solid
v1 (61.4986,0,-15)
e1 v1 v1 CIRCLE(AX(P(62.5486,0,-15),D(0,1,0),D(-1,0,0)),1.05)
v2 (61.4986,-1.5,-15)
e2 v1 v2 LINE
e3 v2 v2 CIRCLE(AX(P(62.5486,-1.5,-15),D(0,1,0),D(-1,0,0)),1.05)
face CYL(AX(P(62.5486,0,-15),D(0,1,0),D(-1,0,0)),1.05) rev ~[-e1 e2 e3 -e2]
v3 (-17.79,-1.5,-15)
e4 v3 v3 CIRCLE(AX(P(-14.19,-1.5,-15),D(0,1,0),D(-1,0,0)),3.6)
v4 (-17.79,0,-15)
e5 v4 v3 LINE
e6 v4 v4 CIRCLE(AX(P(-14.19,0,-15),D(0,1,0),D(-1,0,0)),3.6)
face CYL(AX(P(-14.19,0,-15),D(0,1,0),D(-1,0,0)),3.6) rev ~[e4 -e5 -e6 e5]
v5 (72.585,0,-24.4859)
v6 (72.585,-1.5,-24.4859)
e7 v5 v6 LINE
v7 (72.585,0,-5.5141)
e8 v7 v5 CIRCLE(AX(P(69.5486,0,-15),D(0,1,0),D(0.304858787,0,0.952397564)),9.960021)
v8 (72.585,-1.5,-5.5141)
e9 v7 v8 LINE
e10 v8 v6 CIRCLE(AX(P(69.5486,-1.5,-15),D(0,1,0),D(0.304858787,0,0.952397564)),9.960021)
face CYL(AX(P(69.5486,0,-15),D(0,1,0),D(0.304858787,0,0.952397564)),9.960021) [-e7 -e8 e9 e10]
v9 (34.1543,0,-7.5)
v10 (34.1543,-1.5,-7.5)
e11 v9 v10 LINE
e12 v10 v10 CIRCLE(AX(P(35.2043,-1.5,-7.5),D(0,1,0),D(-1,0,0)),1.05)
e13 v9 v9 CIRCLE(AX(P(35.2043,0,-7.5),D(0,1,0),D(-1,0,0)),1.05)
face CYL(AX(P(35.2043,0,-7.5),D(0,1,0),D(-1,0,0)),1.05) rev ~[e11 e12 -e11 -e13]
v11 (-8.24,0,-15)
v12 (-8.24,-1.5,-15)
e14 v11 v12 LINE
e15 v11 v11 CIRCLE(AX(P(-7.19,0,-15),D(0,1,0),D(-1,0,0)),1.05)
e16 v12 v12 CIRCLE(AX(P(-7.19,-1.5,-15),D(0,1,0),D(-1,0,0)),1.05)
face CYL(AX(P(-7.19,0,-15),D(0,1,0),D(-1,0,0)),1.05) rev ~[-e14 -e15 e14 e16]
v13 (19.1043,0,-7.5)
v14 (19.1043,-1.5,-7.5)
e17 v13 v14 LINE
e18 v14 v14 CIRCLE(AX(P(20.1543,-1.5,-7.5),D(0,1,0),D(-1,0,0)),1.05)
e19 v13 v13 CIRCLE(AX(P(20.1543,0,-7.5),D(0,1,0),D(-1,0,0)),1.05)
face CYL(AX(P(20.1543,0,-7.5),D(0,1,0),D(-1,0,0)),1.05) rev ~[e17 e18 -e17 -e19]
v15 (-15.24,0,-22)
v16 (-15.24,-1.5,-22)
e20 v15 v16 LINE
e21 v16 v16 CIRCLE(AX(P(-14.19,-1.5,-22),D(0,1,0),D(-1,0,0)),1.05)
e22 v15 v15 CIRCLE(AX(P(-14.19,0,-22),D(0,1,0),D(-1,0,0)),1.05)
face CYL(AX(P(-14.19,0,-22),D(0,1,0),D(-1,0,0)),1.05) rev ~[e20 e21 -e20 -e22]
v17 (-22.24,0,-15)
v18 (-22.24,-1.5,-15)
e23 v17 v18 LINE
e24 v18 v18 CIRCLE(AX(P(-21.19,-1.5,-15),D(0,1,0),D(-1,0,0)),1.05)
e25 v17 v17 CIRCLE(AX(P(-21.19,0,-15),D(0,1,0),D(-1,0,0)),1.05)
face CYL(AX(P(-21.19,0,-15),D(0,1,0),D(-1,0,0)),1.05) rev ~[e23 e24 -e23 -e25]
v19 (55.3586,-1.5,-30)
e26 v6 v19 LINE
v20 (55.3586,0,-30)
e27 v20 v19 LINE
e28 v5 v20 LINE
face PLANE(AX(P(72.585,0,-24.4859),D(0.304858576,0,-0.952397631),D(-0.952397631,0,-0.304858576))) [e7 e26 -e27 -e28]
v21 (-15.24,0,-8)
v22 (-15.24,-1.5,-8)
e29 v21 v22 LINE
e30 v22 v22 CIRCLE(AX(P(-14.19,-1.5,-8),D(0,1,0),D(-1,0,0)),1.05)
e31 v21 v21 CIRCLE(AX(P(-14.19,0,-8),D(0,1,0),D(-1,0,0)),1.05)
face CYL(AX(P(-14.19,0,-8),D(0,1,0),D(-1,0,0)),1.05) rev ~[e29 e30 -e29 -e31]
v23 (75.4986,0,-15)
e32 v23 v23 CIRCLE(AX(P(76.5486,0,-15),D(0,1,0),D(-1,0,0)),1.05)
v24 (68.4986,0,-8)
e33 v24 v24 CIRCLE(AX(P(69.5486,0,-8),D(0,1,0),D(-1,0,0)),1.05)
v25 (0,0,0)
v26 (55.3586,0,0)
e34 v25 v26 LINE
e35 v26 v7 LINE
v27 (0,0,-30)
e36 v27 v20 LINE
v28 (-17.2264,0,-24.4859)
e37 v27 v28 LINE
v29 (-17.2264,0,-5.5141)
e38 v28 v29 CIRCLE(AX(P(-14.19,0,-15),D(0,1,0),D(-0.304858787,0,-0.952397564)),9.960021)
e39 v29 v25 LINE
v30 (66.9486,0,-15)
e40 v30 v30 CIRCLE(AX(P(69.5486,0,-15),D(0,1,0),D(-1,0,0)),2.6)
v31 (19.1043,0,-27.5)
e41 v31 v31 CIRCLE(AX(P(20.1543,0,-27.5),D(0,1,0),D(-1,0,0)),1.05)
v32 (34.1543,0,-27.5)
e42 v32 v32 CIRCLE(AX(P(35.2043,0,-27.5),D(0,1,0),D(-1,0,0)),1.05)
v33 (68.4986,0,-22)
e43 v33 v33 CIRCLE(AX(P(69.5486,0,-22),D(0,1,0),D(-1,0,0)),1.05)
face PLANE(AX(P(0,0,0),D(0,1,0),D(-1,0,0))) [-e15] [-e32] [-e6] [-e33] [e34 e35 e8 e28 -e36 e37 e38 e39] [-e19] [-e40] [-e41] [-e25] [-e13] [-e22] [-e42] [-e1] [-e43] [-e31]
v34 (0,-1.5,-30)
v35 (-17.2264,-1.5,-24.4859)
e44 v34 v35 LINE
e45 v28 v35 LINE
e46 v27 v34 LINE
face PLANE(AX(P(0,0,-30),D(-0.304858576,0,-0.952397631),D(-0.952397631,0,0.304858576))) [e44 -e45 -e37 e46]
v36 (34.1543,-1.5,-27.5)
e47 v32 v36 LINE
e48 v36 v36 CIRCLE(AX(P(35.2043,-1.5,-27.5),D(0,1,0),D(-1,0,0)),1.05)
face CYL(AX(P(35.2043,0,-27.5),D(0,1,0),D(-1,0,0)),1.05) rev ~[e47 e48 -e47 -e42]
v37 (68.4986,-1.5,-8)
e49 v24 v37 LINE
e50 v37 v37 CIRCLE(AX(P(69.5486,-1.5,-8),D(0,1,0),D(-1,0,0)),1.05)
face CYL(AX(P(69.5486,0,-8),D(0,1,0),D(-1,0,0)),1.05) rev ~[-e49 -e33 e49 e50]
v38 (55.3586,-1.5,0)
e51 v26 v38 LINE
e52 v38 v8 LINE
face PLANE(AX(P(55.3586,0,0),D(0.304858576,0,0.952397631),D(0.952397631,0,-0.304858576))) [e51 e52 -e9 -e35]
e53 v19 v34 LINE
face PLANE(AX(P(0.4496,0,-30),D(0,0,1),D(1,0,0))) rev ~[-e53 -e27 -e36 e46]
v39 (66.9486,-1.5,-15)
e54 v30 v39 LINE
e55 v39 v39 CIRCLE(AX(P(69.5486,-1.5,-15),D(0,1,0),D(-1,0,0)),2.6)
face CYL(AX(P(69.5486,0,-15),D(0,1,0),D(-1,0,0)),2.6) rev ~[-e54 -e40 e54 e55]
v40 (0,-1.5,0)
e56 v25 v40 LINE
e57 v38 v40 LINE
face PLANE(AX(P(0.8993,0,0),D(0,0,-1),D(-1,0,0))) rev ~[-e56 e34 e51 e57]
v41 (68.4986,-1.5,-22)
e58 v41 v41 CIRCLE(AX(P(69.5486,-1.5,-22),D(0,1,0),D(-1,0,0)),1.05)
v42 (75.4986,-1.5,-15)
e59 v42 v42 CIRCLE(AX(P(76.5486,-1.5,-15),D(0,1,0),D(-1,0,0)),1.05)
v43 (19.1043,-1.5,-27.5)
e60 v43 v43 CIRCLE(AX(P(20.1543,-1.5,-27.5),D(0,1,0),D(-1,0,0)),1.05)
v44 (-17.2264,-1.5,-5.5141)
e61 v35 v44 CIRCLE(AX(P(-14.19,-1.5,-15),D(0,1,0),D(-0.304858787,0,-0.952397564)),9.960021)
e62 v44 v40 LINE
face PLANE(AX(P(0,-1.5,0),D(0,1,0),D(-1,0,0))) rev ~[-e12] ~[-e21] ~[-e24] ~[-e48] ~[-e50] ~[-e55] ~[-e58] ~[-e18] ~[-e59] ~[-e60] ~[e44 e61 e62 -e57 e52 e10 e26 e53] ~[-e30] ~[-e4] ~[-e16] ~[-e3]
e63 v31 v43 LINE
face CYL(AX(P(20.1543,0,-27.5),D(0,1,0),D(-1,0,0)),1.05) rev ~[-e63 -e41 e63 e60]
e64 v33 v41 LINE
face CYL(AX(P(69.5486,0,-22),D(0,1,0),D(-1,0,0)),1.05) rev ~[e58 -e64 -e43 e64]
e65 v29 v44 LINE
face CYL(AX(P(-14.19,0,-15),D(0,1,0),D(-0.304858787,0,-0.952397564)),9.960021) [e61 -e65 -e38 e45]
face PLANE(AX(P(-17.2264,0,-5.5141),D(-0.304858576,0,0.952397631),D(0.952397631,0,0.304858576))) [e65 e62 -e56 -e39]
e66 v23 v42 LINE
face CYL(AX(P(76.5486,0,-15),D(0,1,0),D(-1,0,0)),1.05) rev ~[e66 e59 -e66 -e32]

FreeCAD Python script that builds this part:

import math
import FreeCAD as App
import Part
import Sketcher
Q = App.Units.Quantity

doc = App.newDocument("Part")
params = doc.addObject("Spreadsheet::Sheet", "Params")
for row, (alias, value) in enumerate([
    ("sketch1_diameter", "2.1 mm"),
    ("sketch1_diameter2", "7.2 mm"),
    ("sketch1_diameter3", "5.2 mm"),
    ("sketch1_radius", "9.96 mm"),
    ("pad1_length", "1.5 mm"),
], start=1):
    params.set(f"A{row}", alias)
    params.set(f"B{row}", "=" + value)
    params.setAlias(f"B{row}", alias)

body = doc.addObject("PartDesign::Body", "Body")

# Sketch on XZ plane
sketch1 = body.newObject("Sketcher::SketchObject", "Sketch")
sketch1.AttachmentSupport = (doc.getObject("XZ_Plane"), [""])
sketch1.MapMode = "FlatFace"
sketch1.addGeometry([
    Part.LineSegment(App.Vector(0, -30, 0), App.Vector(-17.2, -24.5, 0)),  # 0
    Part.ArcOfCircle(Part.Circle(App.Vector(-14.2, -15, 0), App.Vector(0, 0, 1), 10), math.radians(108), math.radians(252)),  # 1
    Part.LineSegment(App.Vector(-17.2, -5.5, 0), App.Vector(0, 0, 0)),  # 2
    Part.LineSegment(App.Vector(0, 0, 0), App.Vector(55.4, 0, 0)),  # 3
    Part.LineSegment(App.Vector(55.4, 0, 0), App.Vector(72.6, -5.5, 0)),  # 4
    Part.ArcOfCircle(Part.Circle(App.Vector(69.5, -15, 0), App.Vector(0, 0, 1), 10), math.radians(-72), math.radians(72)),  # 5
    Part.LineSegment(App.Vector(72.6, -24.5, 0), App.Vector(55.4, -30, 0)),  # 6
    Part.LineSegment(App.Vector(55.4, -30, 0), App.Vector(0, -30, 0)),  # 7
    Part.Circle(App.Vector(20.2, -7.5, 0), App.Vector(0, 0, 1), 1.1),  # 8
    Part.Circle(App.Vector(35.2, -27.5, 0), App.Vector(0, 0, 1), 1.1),  # 9
    Part.Circle(App.Vector(20.2, -27.5, 0), App.Vector(0, 0, 1), 1.1),  # 10
    Part.Circle(App.Vector(35.2, -7.5, 0), App.Vector(0, 0, 1), 1.1),  # 11
    Part.Circle(App.Vector(-14.2, -8, 0), App.Vector(0, 0, 1), 1.1),  # 12
    Part.Circle(App.Vector(-14.2, -22, 0), App.Vector(0, 0, 1), 1.1),  # 13
    Part.Circle(App.Vector(-7.2, -15, 0), App.Vector(0, 0, 1), 1.1),  # 14
    Part.Circle(App.Vector(-14.2, -15, 0), App.Vector(0, 0, 1), 3.6),  # 15
    Part.Circle(App.Vector(-21.2, -15, 0), App.Vector(0, 0, 1), 1.1),  # 16
    Part.Circle(App.Vector(69.5, -8, 0), App.Vector(0, 0, 1), 1.1),  # 17
    Part.Circle(App.Vector(69.5, -22, 0), App.Vector(0, 0, 1), 1.1),  # 18
    Part.Circle(App.Vector(76.5, -15, 0), App.Vector(0, 0, 1), 1.1),  # 19
    Part.Circle(App.Vector(69.5, -15, 0), App.Vector(0, 0, 1), 2.6),  # 20
    Part.Circle(App.Vector(62.5, -15, 0), App.Vector(0, 0, 1), 1.1),  # 21
], False)
sketch1.addConstraint([
    Sketcher.Constraint("Tangent", 0, 2, 1, 2),
    Sketcher.Constraint("Tangent", 1, 1, 2, 1),
    Sketcher.Constraint("Coincident", 2, 2, 3, 1),
    Sketcher.Constraint("Coincident", 3, 2, 4, 1),
    Sketcher.Constraint("Tangent", 4, 2, 5, 2),
    Sketcher.Constraint("Tangent", 5, 1, 6, 1),
    Sketcher.Constraint("Coincident", 6, 2, 7, 1),
    Sketcher.Constraint("Coincident", 7, 2, 0, 1),
    Sketcher.Constraint("Horizontal", 3),
    Sketcher.Constraint("Horizontal", 7),
    Sketcher.Constraint("Coincident", 2, 2, -1, 1),
    Sketcher.Constraint("Coincident", 15, 3, 1, 3),
    Sketcher.Constraint("Coincident", 20, 3, 5, 3),
    Sketcher.Constraint("Equal", 1, 5),
    Sketcher.Constraint("Equal", 8, 9),
    Sketcher.Constraint("Equal", 9, 10),
    Sketcher.Constraint("Equal", 10, 11),
    Sketcher.Constraint("Equal", 11, 12),
    Sketcher.Constraint("Equal", 12, 13),
    Sketcher.Constraint("Equal", 13, 14),
    Sketcher.Constraint("Equal", 14, 16),
    Sketcher.Constraint("Equal", 16, 17),
    Sketcher.Constraint("Equal", 17, 18),
    Sketcher.Constraint("Equal", 18, 19),
    Sketcher.Constraint("Equal", 19, 21),
    Sketcher.Constraint("PointOnObject", 7, 2, -2),
    Sketcher.Constraint("Parallel", 0, 4),
    Sketcher.Constraint("Parallel", 2, 6),
    Sketcher.Constraint("Horizontal", 1, 3, 5, 3),
    Sketcher.Constraint("Horizontal", 9, 3, 10, 3),
    Sketcher.Constraint("Horizontal", 8, 3, 11, 3),
    Sketcher.Constraint("Horizontal", 5, 3, 14, 3),
    Sketcher.Constraint("Horizontal", 15, 3, 16, 3),
    Sketcher.Constraint("Horizontal", 12, 3, 17, 3),
    Sketcher.Constraint("Horizontal", 13, 3, 18, 3),
    Sketcher.Constraint("Horizontal", 16, 3, 19, 3),
    Sketcher.Constraint("Horizontal", 20, 3, 21, 3),
    Sketcher.Constraint("Horizontal", 1, 1, 4, 2),
    Sketcher.Constraint("Vertical", 8, 3, 10, 3),
    Sketcher.Constraint("Vertical", 9, 3, 11, 3),
    Sketcher.Constraint("Vertical", 1, 3, 12, 3),
    Sketcher.Constraint("Vertical", 12, 3, 13, 3),
    Sketcher.Constraint("Vertical", 5, 3, 17, 3),
    Sketcher.Constraint("Vertical", 17, 3, 18, 3),
    Sketcher.Constraint("Diameter", 8, Q("2.1 mm")),
    Sketcher.Constraint("Diameter", 15, Q("7.2 mm")),
    Sketcher.Constraint("Diameter", 20, Q("5.2 mm")),
    Sketcher.Constraint("Radius", 1, Q("9.96 mm")),
    Sketcher.Constraint("DistanceY", 1, 3, -1, 1, Q("15 mm")),
    Sketcher.Constraint("DistanceY", 12, 3, -1, 1, Q("8 mm")),
    Sketcher.Constraint("DistanceY", 13, 3, -1, 1, Q("22 mm")),
    Sketcher.Constraint("DistanceY", 9, 3, 8, 3, Q("20 mm")),
    Sketcher.Constraint("DistanceX", 1, 3, 14, 3, Q("7 mm")),
    Sketcher.Constraint("DistanceX", 16, 3, 1, 3, Q("7 mm")),
    Sketcher.Constraint("DistanceX", 5, 3, 19, 3, Q("7 mm")),
    Sketcher.Constraint("DistanceX", 21, 3, 5, 3, Q("7 mm")),
    Sketcher.Constraint("DistanceY", 8, 3, -1, 1, Q("7.5 mm")),
    Sketcher.Constraint("Angle", 0, Q("162.2503 deg")),
    Sketcher.Constraint("DistanceX", 8, 3, 9, 3, Q("15.05 mm")),
    Sketcher.Constraint("DistanceX", 3, 1, 3, 2, Q("55.3586 mm")),
    Sketcher.Constraint("DistanceX", -1, 1, 8, 3, Q("20.1543 mm")),
])
sketch1.setExpression("Constraints[44]", "Params.sketch1_diameter")
sketch1.setExpression("Constraints[45]", "Params.sketch1_diameter2")
sketch1.setExpression("Constraints[46]", "Params.sketch1_diameter3")
sketch1.setExpression("Constraints[47]", "Params.sketch1_radius")
pad1 = body.newObject("PartDesign::Pad", "Pad")
pad1.Profile = sketch1
pad1.setExpression("Length", "Params.pad1_length")

doc.recompute()
